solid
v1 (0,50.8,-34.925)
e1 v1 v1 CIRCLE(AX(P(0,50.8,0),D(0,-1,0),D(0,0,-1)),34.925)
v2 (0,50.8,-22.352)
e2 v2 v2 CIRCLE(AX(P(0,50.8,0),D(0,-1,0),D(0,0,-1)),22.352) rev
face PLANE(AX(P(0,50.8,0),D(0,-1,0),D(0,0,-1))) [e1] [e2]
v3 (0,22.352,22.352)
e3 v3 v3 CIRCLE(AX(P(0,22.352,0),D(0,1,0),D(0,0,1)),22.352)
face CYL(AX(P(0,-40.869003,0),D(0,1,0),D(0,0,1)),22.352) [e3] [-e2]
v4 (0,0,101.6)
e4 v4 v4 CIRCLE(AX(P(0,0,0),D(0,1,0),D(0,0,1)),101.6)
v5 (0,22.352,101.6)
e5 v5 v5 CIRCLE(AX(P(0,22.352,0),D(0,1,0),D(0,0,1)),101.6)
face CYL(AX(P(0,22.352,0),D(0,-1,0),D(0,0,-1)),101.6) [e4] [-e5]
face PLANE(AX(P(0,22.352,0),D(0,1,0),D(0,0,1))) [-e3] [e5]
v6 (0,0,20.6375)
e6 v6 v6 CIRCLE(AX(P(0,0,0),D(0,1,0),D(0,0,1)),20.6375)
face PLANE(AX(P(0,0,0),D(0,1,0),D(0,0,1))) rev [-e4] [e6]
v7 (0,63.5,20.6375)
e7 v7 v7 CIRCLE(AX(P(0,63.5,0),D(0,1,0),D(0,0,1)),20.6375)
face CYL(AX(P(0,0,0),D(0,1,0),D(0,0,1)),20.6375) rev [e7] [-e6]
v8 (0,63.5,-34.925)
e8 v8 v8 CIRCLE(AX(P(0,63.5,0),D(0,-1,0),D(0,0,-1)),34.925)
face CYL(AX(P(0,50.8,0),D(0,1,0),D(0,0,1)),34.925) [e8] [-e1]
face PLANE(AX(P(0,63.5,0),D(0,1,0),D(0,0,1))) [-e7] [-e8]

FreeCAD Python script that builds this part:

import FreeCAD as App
import Part
import Sketcher

V = App.Vector
Q = App.Units.Quantity

doc = App.newDocument("Part")
body = doc.addObject("PartDesign::Body", "Body")

sketch1 = body.newObject("Sketcher::SketchObject", "Sketch")
sketch1.AttachmentSupport = (doc.getObject("XZ_Plane"), [""])
sketch1.MapMode = "FlatFace"
sketch1.addGeometry(Part.Circle(V(0, 0, 0), V(0, 0, 1), 102), False)
sketch1.addConstraint(Sketcher.Constraint("Coincident", 0, 3, -1, 1))
sketch1.addConstraint(Sketcher.Constraint("Diameter", 0, Q("8 in")))
pad1 = body.newObject("PartDesign::Pad", "Pad")
pad1.Profile = sketch1
pad1.Length = Q("0.88 in")
pad1.Reversed = True
body2 = doc.addObject("PartDesign::Body", "Body001")

sketch2 = body2.newObject("Sketcher::SketchObject", "Sketch001")
sketch2.AttachmentSupport = (doc.getObject("XZ_Plane001"), [""])
sketch2.MapMode = "FlatFace"
sketch2.AttachmentOffset = App.Placement(V(0, 0, -2.5 * 25.4), App.Rotation())
sketch2.addGeometry(Part.Circle(V(0, 0, 0), V(0, 0, 1), 35), False)
sketch2.addConstraint(Sketcher.Constraint("Coincident", 0, 3, -1, 1))
sketch2.addConstraint(Sketcher.Constraint("Diameter", 0, Q("2.75 in")))
pad2 = body2.newObject("PartDesign::Pad", "Pad001")
pad2.Profile = sketch2
pad2.Length = Q("0.5 in")
body.AllowCompound = True
doc.recompute()

boolean = body.newObject("PartDesign::Boolean", "Boolean")
boolean.Type = "Fuse"
boolean.addObjects([body2])

sketch3 = body.newObject("Sketcher::SketchObject", "Sketch002")
sketch3.AttachmentSupport = (doc.getObject("XZ_Plane"), [""])
sketch3.MapMode = "FlatFace"
sketch3.AttachmentOffset = App.Placement(V(0, 0, -2.5 * 25.4), App.Rotation())
sketch3.addGeometry(Part.Circle(V(0, 0, 0), V(0, 0, 1), 22), False)
sketch3.addConstraint(Sketcher.Constraint("Coincident", 0, 3, -1, 1))
sketch3.addConstraint(Sketcher.Constraint("Diameter", 0, Q("1.76 in")))
pad3 = body.newObject("PartDesign::Pad", "Pad002")
pad3.Profile = sketch3
pad3.Length = Q("1.62 in")

sketch4 = body.newObject("Sketcher::SketchObject", "Sketch003")
sketch4.AttachmentSupport = (doc.getObject("XZ_Plane"), [""])
sketch4.MapMode = "FlatFace"
sketch4.AttachmentOffset = App.Placement(V(0, 0, -2.5 * 25.4), App.Rotation())
sketch4.addGeometry(Part.Circle(V(0, 0, 0), V(0, 0, 1), 21), False)
sketch4.addConstraint(Sketcher.Constraint("Coincident", 0, 3, -1, 1))
sketch4.addConstraint(Sketcher.Constraint("Diameter", 0, Q("1.625 in")))
pocket1 = body.newObject("PartDesign::Pocket", "Pocket")
pocket1.Profile = sketch4
pocket1.Type = "ThroughAll"
pocket1.Reversed = True

doc.recompute()
